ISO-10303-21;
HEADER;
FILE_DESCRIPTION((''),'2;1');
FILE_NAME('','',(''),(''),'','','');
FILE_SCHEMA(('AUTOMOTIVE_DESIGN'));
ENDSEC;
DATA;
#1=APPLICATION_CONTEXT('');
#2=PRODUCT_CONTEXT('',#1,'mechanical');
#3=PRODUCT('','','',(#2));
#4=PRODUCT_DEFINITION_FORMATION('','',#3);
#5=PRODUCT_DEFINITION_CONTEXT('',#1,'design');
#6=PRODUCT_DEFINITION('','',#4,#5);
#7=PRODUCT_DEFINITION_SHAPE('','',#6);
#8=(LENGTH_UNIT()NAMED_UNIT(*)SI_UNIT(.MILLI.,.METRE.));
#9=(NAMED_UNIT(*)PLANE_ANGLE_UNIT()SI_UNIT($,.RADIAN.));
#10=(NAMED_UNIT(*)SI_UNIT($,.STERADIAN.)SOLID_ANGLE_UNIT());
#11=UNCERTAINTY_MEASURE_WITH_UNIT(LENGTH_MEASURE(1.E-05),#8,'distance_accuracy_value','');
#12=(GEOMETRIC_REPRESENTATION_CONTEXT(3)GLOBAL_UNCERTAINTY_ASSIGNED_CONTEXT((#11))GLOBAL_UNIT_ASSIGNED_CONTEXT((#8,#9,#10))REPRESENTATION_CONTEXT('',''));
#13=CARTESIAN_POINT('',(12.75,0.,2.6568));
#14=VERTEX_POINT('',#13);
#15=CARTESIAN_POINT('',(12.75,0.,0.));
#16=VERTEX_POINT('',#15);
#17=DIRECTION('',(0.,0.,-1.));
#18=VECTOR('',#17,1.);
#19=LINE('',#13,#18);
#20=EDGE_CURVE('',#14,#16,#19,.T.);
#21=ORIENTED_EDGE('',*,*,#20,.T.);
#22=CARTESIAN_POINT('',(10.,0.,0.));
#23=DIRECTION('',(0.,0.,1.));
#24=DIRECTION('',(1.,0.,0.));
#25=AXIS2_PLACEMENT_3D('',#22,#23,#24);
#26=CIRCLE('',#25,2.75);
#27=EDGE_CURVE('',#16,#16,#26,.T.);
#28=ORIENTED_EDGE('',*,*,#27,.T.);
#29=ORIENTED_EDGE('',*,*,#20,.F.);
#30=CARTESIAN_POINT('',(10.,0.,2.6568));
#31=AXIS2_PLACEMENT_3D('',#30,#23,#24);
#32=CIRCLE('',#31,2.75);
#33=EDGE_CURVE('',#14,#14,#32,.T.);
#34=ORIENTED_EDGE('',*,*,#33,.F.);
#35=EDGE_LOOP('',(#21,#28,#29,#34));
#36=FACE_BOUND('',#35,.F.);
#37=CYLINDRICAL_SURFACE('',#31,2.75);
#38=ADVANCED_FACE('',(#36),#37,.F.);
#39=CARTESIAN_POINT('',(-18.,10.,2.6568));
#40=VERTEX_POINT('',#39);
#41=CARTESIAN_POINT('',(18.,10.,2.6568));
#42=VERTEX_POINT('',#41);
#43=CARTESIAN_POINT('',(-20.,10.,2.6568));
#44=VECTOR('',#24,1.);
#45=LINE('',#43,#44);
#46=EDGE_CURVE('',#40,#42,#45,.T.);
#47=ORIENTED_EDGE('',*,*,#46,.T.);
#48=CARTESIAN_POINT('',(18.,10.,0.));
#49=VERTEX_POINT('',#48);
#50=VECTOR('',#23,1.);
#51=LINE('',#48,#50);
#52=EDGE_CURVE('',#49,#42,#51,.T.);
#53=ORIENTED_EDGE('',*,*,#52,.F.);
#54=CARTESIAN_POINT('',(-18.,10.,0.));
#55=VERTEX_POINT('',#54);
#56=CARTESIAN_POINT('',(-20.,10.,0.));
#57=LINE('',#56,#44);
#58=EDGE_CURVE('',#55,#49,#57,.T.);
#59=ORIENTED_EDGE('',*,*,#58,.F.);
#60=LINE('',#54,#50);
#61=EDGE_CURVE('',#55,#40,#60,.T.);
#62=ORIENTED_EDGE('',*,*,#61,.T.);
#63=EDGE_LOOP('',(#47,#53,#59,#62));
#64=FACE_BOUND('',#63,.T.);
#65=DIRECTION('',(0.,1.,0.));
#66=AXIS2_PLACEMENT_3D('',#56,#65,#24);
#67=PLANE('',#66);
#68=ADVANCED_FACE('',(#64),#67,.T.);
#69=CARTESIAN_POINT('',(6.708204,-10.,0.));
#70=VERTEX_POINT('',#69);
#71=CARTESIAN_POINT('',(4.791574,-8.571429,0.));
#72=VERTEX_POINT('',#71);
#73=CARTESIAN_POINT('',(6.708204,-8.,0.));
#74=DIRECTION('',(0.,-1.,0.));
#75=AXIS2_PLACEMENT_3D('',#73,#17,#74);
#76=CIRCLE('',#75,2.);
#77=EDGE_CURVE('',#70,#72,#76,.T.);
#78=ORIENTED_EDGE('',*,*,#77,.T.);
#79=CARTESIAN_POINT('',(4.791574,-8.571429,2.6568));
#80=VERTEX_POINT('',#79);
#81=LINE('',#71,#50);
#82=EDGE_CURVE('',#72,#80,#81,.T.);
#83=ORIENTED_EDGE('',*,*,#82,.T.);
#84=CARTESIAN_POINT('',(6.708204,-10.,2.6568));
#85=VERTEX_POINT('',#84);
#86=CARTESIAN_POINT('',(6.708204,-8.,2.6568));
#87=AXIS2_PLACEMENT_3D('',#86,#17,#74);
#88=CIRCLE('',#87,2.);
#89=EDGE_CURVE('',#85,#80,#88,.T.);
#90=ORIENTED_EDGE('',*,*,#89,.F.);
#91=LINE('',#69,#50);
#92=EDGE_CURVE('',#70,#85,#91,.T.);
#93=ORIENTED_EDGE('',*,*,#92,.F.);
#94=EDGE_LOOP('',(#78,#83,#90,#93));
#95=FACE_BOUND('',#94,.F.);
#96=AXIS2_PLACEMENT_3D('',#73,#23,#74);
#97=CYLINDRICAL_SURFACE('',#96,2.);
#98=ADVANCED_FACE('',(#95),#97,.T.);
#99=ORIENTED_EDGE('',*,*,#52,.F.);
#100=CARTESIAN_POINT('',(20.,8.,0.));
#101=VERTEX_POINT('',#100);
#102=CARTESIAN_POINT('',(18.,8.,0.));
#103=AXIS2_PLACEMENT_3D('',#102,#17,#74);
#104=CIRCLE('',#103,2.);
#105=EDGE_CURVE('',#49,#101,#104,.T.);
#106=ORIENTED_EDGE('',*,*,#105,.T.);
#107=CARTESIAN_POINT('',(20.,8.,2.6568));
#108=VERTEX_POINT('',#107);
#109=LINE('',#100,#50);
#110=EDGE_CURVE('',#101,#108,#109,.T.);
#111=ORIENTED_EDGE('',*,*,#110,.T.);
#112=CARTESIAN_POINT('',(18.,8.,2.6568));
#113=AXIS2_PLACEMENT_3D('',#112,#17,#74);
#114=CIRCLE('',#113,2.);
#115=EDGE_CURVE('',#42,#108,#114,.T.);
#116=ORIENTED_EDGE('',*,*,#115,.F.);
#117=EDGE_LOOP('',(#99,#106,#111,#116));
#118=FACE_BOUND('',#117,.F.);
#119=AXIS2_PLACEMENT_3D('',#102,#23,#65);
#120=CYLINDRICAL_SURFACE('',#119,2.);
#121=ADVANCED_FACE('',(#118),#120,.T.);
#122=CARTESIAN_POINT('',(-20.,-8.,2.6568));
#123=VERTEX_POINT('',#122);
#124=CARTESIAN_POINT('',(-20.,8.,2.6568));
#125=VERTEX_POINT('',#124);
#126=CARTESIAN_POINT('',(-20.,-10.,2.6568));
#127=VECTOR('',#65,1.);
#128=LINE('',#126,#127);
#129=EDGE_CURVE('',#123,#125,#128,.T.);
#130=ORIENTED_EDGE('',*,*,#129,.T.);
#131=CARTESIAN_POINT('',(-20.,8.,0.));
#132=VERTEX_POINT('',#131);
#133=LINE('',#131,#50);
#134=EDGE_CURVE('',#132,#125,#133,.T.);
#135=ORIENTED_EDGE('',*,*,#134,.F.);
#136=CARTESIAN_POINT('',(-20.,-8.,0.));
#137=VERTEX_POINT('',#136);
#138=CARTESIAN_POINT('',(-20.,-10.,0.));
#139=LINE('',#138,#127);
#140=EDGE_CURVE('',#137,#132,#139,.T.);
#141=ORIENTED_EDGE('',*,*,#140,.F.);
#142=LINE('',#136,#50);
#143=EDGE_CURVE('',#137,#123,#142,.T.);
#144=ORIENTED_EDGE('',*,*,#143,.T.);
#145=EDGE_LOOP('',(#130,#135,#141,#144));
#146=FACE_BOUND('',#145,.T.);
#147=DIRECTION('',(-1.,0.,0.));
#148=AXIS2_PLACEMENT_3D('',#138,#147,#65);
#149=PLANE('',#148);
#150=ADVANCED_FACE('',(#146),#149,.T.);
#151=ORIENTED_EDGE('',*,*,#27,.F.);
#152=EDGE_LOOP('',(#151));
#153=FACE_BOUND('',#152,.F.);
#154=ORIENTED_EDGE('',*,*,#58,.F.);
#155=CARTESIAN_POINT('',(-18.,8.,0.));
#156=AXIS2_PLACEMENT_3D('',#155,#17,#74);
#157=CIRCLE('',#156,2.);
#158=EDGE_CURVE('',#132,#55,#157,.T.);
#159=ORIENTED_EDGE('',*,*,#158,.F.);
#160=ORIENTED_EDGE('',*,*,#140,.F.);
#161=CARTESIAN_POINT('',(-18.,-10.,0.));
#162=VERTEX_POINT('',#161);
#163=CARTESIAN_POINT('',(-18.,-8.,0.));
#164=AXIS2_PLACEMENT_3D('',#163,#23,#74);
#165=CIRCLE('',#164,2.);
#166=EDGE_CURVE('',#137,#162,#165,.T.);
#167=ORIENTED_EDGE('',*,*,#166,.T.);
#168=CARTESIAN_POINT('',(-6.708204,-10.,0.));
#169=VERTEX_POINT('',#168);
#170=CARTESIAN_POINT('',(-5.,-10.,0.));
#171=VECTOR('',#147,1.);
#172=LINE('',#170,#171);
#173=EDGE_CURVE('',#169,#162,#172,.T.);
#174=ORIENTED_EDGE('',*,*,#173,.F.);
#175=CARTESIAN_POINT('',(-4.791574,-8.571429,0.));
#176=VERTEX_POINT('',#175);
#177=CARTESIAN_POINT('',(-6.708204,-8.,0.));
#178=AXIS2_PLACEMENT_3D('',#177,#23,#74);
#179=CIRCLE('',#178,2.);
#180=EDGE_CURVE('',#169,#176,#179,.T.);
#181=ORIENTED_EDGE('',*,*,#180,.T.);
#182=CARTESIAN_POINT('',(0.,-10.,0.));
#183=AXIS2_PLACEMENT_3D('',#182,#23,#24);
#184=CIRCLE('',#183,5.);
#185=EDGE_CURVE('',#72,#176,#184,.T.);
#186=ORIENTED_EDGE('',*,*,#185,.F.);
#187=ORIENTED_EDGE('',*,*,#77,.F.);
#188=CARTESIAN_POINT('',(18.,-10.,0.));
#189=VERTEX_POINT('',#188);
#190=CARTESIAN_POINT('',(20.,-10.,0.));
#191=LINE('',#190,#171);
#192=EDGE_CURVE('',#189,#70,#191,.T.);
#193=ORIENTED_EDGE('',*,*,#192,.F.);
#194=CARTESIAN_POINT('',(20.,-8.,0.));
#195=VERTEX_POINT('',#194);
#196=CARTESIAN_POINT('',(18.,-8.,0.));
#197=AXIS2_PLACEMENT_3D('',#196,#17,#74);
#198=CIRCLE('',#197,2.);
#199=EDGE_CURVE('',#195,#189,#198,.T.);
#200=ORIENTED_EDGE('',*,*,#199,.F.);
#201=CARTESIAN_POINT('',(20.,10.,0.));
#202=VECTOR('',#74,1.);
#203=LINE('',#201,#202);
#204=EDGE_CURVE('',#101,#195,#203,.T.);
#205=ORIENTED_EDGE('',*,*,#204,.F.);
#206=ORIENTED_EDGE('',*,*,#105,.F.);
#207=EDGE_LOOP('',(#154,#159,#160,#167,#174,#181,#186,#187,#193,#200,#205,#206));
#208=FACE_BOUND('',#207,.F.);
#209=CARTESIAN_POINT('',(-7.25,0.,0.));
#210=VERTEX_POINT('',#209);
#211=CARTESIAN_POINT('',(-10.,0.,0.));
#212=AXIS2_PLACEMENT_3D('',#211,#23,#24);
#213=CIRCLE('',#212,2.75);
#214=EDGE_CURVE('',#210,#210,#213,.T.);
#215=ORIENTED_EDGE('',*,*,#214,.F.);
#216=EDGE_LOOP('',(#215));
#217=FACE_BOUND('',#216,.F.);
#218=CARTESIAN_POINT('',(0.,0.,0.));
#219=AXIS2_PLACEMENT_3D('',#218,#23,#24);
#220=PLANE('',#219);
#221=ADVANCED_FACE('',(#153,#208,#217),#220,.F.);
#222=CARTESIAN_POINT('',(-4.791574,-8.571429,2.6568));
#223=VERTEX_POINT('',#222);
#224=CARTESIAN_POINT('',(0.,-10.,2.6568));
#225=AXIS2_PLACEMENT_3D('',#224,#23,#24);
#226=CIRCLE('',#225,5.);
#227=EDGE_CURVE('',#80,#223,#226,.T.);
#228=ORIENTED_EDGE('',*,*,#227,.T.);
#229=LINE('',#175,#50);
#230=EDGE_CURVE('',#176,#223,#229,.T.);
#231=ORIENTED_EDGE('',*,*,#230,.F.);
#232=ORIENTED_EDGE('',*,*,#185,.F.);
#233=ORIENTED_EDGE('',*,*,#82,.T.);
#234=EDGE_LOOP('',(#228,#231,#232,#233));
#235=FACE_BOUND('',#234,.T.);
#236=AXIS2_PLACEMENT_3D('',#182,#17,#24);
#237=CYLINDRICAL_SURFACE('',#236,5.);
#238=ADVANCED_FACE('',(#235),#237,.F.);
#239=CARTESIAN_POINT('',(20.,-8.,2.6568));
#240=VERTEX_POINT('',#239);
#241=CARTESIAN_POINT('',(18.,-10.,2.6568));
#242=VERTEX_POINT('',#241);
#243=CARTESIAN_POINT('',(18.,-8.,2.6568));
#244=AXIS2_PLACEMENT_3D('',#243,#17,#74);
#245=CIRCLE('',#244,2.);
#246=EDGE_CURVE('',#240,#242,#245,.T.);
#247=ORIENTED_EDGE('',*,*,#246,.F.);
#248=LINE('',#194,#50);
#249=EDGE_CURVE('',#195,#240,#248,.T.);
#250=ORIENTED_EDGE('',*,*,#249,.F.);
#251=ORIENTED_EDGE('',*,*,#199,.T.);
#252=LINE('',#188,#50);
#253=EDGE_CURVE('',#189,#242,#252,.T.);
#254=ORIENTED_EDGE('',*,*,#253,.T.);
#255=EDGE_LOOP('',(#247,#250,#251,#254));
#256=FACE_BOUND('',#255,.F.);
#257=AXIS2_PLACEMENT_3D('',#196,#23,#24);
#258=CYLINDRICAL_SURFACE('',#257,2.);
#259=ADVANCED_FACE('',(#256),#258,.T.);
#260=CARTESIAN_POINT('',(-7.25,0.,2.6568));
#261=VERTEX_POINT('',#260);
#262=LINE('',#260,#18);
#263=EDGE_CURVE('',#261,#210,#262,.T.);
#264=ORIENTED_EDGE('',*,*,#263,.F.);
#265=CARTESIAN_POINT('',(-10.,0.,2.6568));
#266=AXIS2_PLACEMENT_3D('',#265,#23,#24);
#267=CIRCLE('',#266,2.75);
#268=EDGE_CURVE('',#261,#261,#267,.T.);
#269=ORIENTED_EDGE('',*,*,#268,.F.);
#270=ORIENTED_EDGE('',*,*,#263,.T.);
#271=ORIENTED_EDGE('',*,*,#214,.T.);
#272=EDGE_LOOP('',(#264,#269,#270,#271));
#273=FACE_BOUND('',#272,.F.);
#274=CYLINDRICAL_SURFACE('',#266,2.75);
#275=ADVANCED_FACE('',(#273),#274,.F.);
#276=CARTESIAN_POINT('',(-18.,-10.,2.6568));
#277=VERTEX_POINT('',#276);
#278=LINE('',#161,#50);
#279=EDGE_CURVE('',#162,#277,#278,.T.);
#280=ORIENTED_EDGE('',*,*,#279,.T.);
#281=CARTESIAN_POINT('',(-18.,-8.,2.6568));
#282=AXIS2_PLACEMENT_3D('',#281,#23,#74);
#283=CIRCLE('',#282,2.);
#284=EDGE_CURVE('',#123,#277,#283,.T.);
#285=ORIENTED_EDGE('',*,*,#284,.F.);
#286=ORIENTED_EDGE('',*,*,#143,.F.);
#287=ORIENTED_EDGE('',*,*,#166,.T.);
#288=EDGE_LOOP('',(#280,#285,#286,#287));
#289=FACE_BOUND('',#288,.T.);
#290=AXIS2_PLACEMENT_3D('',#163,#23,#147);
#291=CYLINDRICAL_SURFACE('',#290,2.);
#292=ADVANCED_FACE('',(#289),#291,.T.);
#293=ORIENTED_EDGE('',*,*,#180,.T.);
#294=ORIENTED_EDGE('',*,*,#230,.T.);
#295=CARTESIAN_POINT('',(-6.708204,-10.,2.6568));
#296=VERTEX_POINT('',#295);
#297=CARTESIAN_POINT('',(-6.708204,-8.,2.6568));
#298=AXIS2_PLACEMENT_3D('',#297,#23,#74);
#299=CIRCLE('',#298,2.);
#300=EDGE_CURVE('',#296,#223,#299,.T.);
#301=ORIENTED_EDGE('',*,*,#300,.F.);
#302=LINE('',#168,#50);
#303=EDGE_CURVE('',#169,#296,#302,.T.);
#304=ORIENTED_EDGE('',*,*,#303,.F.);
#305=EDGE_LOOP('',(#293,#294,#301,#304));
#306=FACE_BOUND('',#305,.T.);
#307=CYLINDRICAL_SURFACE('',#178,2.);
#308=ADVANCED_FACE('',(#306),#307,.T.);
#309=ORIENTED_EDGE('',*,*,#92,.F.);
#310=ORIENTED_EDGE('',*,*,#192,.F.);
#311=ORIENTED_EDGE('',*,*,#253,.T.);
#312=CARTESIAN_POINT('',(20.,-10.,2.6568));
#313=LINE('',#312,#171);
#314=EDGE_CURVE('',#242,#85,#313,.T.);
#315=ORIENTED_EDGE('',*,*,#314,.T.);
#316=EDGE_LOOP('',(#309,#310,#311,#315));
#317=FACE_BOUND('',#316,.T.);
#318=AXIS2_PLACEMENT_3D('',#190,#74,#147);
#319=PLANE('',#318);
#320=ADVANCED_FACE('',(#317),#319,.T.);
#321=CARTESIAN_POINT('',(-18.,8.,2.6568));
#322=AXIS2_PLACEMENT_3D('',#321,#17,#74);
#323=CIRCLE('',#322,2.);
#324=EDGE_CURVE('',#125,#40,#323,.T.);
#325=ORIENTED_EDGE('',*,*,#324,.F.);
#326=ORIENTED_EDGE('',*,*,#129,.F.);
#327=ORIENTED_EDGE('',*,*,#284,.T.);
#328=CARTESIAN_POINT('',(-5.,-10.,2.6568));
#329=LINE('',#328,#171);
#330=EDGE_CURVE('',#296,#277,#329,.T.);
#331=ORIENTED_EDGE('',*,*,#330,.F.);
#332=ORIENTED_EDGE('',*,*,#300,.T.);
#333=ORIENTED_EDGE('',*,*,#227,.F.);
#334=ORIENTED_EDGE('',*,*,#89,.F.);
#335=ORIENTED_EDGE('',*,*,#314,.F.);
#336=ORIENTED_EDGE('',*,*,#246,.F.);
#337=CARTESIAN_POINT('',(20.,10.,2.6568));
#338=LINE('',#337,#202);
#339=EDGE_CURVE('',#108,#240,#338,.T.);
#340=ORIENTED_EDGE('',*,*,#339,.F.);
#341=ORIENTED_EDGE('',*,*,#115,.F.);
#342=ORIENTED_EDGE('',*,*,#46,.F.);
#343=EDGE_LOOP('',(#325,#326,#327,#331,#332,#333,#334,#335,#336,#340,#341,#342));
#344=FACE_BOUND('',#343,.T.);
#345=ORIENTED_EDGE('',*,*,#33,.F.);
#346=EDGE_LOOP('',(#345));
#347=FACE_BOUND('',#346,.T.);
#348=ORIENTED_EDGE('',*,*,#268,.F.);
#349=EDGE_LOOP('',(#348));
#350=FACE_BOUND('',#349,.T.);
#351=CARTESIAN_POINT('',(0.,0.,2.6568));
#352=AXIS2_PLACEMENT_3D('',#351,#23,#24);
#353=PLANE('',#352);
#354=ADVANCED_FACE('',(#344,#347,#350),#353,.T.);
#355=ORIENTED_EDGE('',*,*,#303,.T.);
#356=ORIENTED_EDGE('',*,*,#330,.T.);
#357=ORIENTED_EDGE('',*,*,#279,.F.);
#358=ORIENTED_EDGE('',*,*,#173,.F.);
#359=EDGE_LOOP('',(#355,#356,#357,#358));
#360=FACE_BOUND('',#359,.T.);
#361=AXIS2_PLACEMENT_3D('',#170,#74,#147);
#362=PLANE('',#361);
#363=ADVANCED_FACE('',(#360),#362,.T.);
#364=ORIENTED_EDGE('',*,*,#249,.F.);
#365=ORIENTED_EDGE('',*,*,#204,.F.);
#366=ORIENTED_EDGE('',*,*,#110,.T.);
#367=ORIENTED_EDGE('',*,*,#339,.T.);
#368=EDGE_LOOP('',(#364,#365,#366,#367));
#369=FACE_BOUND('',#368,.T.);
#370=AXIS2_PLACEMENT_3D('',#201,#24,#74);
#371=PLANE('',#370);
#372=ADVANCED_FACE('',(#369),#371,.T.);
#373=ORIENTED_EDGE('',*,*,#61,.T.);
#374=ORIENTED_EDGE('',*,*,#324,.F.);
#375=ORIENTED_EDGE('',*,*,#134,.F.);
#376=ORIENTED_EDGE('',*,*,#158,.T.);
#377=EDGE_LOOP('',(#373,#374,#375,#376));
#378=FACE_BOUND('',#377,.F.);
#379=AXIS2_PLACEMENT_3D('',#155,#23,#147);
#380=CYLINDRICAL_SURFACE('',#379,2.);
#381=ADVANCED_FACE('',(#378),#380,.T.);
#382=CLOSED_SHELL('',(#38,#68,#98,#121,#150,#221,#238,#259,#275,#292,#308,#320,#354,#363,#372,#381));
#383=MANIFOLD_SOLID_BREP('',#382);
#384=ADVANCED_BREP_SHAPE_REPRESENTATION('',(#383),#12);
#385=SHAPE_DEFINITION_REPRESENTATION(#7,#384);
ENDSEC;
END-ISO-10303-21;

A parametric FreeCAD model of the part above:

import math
import FreeCAD as App
import Part
import Sketcher
Q = App.Units.Quantity


def edges_at(feature, points):
    """Names of the edges that pass closest to the given points."""
    edges = feature.Shape.Edges
    near = lambda p: min(range(len(edges)), key=lambda i: edges[i].distToShape(Part.Vertex(*p))[0])
    return sorted({f"Edge{near(p) + 1}" for p in points})

doc = App.newDocument("Part")
body = doc.addObject("PartDesign::Body", "Body")

sketch1 = doc.addObject("Sketcher::SketchObject", "Sketch")
body.addObject(sketch1)
sketch1.AttachmentSupport = (doc.XY_Plane, [""])
sketch1.MapMode = "FlatFace"
sketch1.addGeometry(Part.LineSegment(App.Vector(20, 10, 0), App.Vector(-20, 10, 0)), False)
sketch1.addGeometry(Part.LineSegment(App.Vector(-20, 10, 0), App.Vector(-20, -10, 0)), False)
sketch1.addGeometry(Part.LineSegment(App.Vector(-20, -10, 0), App.Vector(-5, -10, 0)), False)
sketch1.addGeometry(Part.ArcOfCircle(Part.Circle(App.Vector(0, -10, 0), App.Vector(0, 0, 1), 5), math.radians(0), math.radians(180)), False)
sketch1.addGeometry(Part.LineSegment(App.Vector(5, -10, 0), App.Vector(20, -10, 0)), False)
sketch1.addGeometry(Part.LineSegment(App.Vector(20, -10, 0), App.Vector(20, 10, 0)), False)
sketch1.addConstraint(Sketcher.Constraint("Coincident", 0, 2, 1, 1))
sketch1.addConstraint(Sketcher.Constraint("Coincident", 1, 2, 2, 1))
sketch1.addConstraint(Sketcher.Constraint("Coincident", 2, 2, 3, 2))
sketch1.addConstraint(Sketcher.Constraint("Coincident", 3, 1, 4, 1))
sketch1.addConstraint(Sketcher.Constraint("Coincident", 4, 2, 5, 1))
sketch1.addConstraint(Sketcher.Constraint("Coincident", 5, 2, 0, 1))
sketch1.addConstraint(Sketcher.Constraint("Horizontal", 0))
sketch1.addConstraint(Sketcher.Constraint("Vertical", 1))
sketch1.addConstraint(Sketcher.Constraint("Horizontal", 2))
sketch1.addConstraint(Sketcher.Constraint("Horizontal", 4))
sketch1.addConstraint(Sketcher.Constraint("Vertical", 5))
sketch1.addConstraint(Sketcher.Constraint("Symmetric", 0, 2, 4, 2, -1, 1))
sketch1.addConstraint(Sketcher.Constraint("Symmetric", 2, 2, 3, 1, -2))
sketch1.addConstraint(Sketcher.Constraint("Horizontal", 3, 3, 1, 2))
sketch1.addConstraint(Sketcher.Constraint("Radius", 3, Q("5 mm")))
sketch1.addConstraint(Sketcher.Constraint("DistanceX", 0, 2, 0, 1, Q("40 mm")))
sketch1.addConstraint(Sketcher.Constraint("DistanceY", 1, 2, 1, 1, Q("20 mm")))
pad1 = doc.addObject("PartDesign::Pad", "Pad")
body.addObject(pad1)
pad1.Profile = sketch1
pad1.Length = 2.6568

sketch2 = doc.addObject("Sketcher::SketchObject", "Sketch001")
body.addObject(sketch2)
sketch2.AttachmentSupport = (doc.XY_Plane, [""])
sketch2.MapMode = "FlatFace"
sketch2.AttachmentOffset = App.Placement(App.Vector(0, 0, 2.6568), App.Rotation())
sketch2.addGeometry(Part.Circle(App.Vector(-10, 0, 0), App.Vector(0, 0, 1), 2.75), False)
sketch2.addGeometry(Part.Circle(App.Vector(10, 0, 0), App.Vector(0, 0, 1), 2.75), False)
sketch2.addConstraint(Sketcher.Constraint("Equal", 0, 1))
sketch2.addConstraint(Sketcher.Constraint("Symmetric", 0, 3, 1, 3, -1, 1))
sketch2.addConstraint(Sketcher.Constraint("PointOnObject", 0, 3, -1))
sketch2.addConstraint(Sketcher.Constraint("Diameter", 0, Q("5.5 mm")))
sketch2.addConstraint(Sketcher.Constraint("DistanceX", 0, 3, -1, 1, Q("10 mm")))
pocket1 = doc.addObject("PartDesign::Pocket", "Pocket")
body.addObject(pocket1)
pocket1.Profile = sketch2
pocket1.Type = "ThroughAll"
doc.recompute()

fillet = doc.addObject("PartDesign::Fillet", "Fillet")
body.addObject(fillet)
fillet.Base = (pocket1, edges_at(pocket1, [
    (20, -10, 1.328),
    (-20, -10, 1.328),
    (-5, -10, 1.328),
    (5, -10, 1.328),
]))
fillet.Radius = 2
doc.recompute()

fillet2 = doc.addObject("PartDesign::Fillet", "Fillet001")
body.addObject(fillet2)
fillet2.Base = (fillet, edges_at(fillet, [(20, 10, 1.328), (-20, 10, 1.328)]))
fillet2.Radius = 2

doc.recompute()
